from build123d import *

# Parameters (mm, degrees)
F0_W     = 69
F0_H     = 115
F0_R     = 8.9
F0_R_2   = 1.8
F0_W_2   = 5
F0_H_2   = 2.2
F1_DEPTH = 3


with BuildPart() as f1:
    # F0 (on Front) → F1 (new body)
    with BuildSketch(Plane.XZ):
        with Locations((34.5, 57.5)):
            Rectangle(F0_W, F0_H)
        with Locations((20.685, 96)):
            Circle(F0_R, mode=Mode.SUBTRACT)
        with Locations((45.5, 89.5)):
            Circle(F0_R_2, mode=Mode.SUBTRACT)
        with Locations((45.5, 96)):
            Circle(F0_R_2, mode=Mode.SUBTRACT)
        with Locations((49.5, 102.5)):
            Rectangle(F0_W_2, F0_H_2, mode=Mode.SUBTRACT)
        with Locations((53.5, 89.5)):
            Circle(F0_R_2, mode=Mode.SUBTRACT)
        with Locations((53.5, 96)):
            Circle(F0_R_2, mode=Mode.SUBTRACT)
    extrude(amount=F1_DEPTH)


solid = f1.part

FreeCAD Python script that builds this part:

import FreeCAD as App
import Part
import Sketcher
from FreeCAD import Vector

doc = App.newDocument("Part")
body = doc.addObject("PartDesign::Body", "Body")

sketch1 = body.newObject("Sketcher::SketchObject", "Sketch")
sketch1.AttachmentSupport = (doc.getObject("XZ_Plane"), [""])
sketch1.MapMode = "FlatFace"
sketch1.addGeometry([
    Part.LineSegment(Vector(0, 115, 0), Vector(0, 0, 0)),
    Part.LineSegment(Vector(0, 0, 0), Vector(69, 0, 0)),
    Part.LineSegment(Vector(69, 0, 0), Vector(69, 115, 0)),
    Part.LineSegment(Vector(69, 115, 0), Vector(0, 115, 0)),
    Part.Circle(Vector(45.5, 89.5, 0), Vector(0, 0, 1), 1.8),
    Part.Circle(Vector(53.5, 89.5, 0), Vector(0, 0, 1), 1.8),
    Part.Circle(Vector(20.7, 96, 0), Vector(0, 0, 1), 8.9),
    Part.Circle(Vector(45.5, 96, 0), Vector(0, 0, 1), 1.8),
    Part.Circle(Vector(53.5, 96, 0), Vector(0, 0, 1), 1.8),
    Part.LineSegment(Vector(52, 101.4, 0), Vector(47, 101.4, 0)),
    Part.LineSegment(Vector(47, 101.4, 0), Vector(47, 103.6, 0)),
    Part.LineSegment(Vector(47, 103.6, 0), Vector(52, 103.6, 0)),
    Part.LineSegment(Vector(52, 103.6, 0), Vector(52, 101.4, 0)),
], False)
sketch1.addConstraint([
    Sketcher.Constraint("Coincident", 0, 2, 1, 1),
    Sketcher.Constraint("Coincident", 1, 2, 2, 1),
    Sketcher.Constraint("Coincident", 2, 2, 3, 1),
    Sketcher.Constraint("Coincident", 3, 2, 0, 1),
    Sketcher.Constraint("Coincident", 9, 2, 10, 1),
    Sketcher.Constraint("Coincident", 10, 2, 11, 1),
    Sketcher.Constraint("Coincident", 11, 2, 12, 1),
    Sketcher.Constraint("Coincident", 12, 2, 9, 1),
    Sketcher.Constraint("Vertical", 0),
    Sketcher.Constraint("Horizontal", 1),
    Sketcher.Constraint("Vertical", 2),
    Sketcher.Constraint("Horizontal", 3),
    Sketcher.Constraint("Horizontal", 9),
    Sketcher.Constraint("Vertical", 10),
    Sketcher.Constraint("Horizontal", 11),
    Sketcher.Constraint("Vertical", 12),
    Sketcher.Constraint("Coincident", 0, 2, -1, 1),
    Sketcher.Constraint("Equal", 4, 5),
    Sketcher.Constraint("Equal", 5, 7),
    Sketcher.Constraint("Equal", 7, 8),
    Sketcher.Constraint("Horizontal", 4, 3, 5, 3),
    Sketcher.Constraint("Horizontal", 6, 3, 7, 3),
    Sketcher.Constraint("Horizontal", 7, 3, 8, 3),
    Sketcher.Constraint("Vertical", 4, 3, 7, 3),
    Sketcher.Constraint("Vertical", 5, 3, 8, 3),
    Sketcher.Constraint("Diameter", 4, 3.6),
    Sketcher.Constraint("Diameter", 6, 17.8),
    Sketcher.Constraint("DistanceX", 1, 1, 1, 2, 69.0),
    Sketcher.Constraint("DistanceX", 9, 2, 9, 1, 5.0),
    Sketcher.Constraint("DistanceY", 0, 2, 0, 1, 115.0),
    Sketcher.Constraint("DistanceY", 10, 1, 10, 2, 2.2),
    Sketcher.Constraint("DistanceY", -1, 1, 6, 3, 96.0),
    Sketcher.Constraint("DistanceX", -1, 1, 9, 2, 47.0),
    Sketcher.Constraint("DistanceX", 4, 3, 5, 3, 8.0),
    Sketcher.Constraint("DistanceX", -1, 1, 4, 3, 45.5),
    Sketcher.Constraint("DistanceY", -1, 1, 4, 3, 89.5),
    Sketcher.Constraint("DistanceY", -1, 1, 9, 2, 101.4),
    Sketcher.Constraint("DistanceX", -1, 1, 6, 3, 20.685),
])
pad1 = body.newObject("PartDesign::Pad", "Pad")
pad1.Profile = sketch1
pad1.Length = 3

doc.recompute()
